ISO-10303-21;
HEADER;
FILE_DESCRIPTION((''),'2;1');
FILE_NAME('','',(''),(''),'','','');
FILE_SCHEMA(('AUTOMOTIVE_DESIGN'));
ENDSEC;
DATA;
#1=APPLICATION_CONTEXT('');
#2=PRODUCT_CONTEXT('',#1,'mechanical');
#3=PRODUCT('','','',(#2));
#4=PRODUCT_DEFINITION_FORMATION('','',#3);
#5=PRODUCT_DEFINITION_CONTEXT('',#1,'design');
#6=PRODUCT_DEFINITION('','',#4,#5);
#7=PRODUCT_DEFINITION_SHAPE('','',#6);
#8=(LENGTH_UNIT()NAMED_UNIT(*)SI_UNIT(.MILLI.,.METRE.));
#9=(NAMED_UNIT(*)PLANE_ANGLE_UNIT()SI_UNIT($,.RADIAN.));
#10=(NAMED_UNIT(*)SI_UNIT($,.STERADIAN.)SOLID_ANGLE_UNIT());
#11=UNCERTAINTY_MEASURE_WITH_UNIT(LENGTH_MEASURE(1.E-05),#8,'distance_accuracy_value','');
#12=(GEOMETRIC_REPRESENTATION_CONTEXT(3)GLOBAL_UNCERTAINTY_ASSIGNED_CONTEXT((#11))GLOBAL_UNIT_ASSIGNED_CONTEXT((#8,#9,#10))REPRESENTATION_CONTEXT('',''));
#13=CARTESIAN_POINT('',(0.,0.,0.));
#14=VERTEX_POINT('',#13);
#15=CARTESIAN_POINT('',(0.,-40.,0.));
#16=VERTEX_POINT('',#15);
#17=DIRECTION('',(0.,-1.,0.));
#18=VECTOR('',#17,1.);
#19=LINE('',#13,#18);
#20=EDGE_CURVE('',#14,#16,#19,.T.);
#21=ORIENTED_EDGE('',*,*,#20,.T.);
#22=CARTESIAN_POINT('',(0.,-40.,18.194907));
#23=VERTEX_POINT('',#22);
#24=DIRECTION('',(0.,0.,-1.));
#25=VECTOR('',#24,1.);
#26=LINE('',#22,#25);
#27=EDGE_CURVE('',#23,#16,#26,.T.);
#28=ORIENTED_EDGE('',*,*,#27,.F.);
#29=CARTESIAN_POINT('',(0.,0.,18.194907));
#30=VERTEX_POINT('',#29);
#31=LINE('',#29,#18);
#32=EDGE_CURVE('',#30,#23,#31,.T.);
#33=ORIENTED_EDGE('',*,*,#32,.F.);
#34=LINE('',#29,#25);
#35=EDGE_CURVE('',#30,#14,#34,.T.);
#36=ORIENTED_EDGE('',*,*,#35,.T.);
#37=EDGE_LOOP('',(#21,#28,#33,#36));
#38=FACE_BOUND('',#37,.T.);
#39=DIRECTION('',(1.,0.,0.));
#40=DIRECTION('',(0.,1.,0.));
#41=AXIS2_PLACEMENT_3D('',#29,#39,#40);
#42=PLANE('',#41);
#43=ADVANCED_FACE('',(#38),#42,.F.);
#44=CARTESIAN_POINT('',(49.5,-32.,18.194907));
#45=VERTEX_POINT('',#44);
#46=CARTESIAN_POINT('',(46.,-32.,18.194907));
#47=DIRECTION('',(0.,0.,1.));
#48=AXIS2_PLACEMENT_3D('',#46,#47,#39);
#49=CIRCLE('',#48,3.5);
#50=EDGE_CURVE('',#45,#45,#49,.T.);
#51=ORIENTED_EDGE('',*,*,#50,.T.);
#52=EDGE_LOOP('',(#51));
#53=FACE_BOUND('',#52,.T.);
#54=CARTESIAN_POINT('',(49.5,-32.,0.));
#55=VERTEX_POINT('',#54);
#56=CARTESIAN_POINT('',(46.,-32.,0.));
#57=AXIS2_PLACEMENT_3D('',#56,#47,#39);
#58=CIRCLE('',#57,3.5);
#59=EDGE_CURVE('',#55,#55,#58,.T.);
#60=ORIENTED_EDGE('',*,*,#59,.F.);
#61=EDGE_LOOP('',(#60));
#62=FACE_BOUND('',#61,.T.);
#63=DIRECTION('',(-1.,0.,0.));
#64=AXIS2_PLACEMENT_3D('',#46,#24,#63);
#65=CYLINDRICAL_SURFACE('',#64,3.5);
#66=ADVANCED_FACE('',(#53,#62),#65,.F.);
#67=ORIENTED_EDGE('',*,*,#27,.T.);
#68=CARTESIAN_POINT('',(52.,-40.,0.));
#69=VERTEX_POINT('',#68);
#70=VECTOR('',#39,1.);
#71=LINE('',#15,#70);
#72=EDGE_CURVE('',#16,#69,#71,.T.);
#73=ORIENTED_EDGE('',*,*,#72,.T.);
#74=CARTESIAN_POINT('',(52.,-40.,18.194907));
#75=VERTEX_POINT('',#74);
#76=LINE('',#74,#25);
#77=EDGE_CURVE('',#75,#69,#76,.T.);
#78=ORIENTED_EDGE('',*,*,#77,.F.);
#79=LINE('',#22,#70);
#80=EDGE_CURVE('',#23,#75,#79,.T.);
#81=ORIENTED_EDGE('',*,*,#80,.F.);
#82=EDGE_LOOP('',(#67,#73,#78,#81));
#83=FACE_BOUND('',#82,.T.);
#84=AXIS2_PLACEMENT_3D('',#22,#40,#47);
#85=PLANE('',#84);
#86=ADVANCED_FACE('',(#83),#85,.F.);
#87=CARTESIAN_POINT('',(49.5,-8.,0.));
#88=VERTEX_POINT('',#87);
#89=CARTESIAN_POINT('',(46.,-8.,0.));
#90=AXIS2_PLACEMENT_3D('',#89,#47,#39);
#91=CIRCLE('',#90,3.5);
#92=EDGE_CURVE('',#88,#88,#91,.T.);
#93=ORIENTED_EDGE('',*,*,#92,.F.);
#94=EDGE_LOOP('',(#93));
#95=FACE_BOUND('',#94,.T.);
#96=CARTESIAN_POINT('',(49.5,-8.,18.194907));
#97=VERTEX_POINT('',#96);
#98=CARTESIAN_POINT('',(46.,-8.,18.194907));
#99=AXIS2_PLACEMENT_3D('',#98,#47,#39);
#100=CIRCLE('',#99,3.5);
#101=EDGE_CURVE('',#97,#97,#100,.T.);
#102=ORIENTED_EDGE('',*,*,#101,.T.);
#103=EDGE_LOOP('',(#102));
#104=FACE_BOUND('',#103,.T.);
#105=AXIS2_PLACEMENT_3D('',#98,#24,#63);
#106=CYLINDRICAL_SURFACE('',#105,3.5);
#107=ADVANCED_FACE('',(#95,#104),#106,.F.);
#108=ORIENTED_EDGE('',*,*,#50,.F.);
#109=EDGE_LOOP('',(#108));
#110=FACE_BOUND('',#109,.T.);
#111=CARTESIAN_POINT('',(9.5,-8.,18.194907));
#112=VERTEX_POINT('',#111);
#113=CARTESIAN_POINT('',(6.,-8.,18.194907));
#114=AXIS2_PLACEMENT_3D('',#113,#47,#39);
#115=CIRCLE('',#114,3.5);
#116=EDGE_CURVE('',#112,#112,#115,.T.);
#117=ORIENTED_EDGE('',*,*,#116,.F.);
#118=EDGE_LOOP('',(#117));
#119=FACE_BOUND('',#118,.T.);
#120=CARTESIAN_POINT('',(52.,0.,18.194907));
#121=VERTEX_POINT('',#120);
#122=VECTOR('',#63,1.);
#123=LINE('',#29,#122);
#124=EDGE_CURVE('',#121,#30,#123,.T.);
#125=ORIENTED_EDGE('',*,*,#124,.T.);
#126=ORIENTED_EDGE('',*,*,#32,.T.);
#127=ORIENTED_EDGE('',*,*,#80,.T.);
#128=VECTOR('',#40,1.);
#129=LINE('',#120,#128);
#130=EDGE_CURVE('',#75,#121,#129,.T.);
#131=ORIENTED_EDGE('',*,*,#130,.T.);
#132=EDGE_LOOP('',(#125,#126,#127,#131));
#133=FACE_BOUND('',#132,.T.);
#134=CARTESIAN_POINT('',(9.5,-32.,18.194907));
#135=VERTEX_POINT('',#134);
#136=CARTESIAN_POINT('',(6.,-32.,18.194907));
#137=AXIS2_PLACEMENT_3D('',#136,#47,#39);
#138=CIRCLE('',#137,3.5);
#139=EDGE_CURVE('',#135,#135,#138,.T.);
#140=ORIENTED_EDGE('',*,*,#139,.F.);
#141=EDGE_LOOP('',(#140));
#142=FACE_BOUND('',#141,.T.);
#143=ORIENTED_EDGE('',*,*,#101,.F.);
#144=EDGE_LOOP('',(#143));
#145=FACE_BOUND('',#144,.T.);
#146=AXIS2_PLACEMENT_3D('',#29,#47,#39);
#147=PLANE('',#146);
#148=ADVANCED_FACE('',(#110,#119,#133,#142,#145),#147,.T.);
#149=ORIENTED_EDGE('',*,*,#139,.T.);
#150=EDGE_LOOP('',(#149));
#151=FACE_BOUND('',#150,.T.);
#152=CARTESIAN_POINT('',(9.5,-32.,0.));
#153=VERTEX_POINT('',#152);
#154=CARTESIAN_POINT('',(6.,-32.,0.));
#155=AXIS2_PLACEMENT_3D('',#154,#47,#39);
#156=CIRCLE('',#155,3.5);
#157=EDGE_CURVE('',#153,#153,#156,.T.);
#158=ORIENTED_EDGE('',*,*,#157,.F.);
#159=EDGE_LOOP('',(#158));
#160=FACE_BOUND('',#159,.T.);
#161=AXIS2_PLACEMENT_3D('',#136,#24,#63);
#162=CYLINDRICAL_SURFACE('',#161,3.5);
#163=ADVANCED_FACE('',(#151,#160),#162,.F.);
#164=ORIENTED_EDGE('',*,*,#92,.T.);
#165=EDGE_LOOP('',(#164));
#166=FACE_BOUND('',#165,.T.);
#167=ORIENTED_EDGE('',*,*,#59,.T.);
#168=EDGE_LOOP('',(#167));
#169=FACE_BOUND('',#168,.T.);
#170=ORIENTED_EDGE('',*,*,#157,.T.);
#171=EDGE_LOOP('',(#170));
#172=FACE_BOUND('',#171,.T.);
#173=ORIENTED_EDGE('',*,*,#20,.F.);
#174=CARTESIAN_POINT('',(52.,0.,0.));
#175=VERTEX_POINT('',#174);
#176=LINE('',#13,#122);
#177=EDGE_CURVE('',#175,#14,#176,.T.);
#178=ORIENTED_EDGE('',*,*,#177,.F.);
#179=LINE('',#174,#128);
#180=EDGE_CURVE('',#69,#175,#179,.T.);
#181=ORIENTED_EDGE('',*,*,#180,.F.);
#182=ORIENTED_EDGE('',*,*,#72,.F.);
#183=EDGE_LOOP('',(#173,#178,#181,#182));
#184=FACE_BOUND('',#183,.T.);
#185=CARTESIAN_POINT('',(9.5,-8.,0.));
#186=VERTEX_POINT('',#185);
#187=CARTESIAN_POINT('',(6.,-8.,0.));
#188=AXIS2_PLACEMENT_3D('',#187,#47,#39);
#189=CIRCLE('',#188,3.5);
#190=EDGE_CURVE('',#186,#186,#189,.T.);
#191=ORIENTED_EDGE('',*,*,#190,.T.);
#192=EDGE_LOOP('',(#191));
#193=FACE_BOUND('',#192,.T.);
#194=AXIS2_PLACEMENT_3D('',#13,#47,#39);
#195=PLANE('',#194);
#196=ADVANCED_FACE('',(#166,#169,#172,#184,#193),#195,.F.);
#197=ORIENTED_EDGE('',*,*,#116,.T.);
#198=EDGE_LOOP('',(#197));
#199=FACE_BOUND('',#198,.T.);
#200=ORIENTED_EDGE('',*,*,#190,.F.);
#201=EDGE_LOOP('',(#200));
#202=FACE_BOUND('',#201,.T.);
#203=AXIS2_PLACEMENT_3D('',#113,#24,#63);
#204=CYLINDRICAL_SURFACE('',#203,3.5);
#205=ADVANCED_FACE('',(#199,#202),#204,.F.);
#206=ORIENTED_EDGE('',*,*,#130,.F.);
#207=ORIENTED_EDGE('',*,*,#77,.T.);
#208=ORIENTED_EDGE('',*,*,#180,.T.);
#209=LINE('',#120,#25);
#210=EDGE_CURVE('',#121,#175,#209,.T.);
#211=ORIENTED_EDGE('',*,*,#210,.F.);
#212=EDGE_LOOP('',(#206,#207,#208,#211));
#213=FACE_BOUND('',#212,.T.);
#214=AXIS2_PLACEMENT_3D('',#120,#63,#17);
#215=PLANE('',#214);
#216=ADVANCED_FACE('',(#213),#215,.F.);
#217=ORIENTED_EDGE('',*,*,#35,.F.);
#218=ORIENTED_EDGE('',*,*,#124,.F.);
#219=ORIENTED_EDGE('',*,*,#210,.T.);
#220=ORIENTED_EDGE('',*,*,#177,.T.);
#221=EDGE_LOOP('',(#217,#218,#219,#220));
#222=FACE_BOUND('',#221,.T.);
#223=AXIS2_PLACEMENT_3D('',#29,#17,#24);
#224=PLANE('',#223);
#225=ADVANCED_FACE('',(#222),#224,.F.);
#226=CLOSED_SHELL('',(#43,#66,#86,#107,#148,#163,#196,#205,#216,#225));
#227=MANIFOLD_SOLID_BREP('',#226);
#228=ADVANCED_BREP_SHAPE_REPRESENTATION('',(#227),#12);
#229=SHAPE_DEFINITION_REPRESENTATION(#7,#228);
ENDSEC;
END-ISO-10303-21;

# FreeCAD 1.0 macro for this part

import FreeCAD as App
import Part
import Sketcher
Q = App.Units.Quantity

doc = App.newDocument("Part")
body = doc.addObject("PartDesign::Body", "Body")

# Sketch on XY plane
sketch1 = body.newObject("Sketcher::SketchObject", "Sketch")
sketch1.AttachmentSupport = (doc.getObject("XY_Plane"), [""])
sketch1.MapMode = "FlatFace"
sketch1.addGeometry(Part.LineSegment(App.Vector(0, 0, 0), App.Vector(0, -40, 0)), False)
sketch1.addGeometry(Part.LineSegment(App.Vector(0, -40, 0), App.Vector(52, -40, 0)), False)
sketch1.addGeometry(Part.LineSegment(App.Vector(52, -40, 0), App.Vector(52, 0, 0)), False)
sketch1.addGeometry(Part.LineSegment(App.Vector(52, 0, 0), App.Vector(0, 0, 0)), False)
sketch1.addGeometry(Part.Circle(App.Vector(6, -32, 0), App.Vector(0, 0, 1), 3.5), False)
sketch1.addGeometry(Part.Circle(App.Vector(46, -32, 0), App.Vector(0, 0, 1), 3.5), False)
sketch1.addGeometry(Part.Circle(App.Vector(6, -8, 0), App.Vector(0, 0, 1), 3.5), False)
sketch1.addGeometry(Part.Circle(App.Vector(46, -8, 0), App.Vector(0, 0, 1), 3.5), False)
sketch1.addConstraint(Sketcher.Constraint("Coincident", 0, 2, 1, 1))
sketch1.addConstraint(Sketcher.Constraint("Coincident", 1, 2, 2, 1))
sketch1.addConstraint(Sketcher.Constraint("Coincident", 2, 2, 3, 1))
sketch1.addConstraint(Sketcher.Constraint("Coincident", 3, 2, 0, 1))
sketch1.addConstraint(Sketcher.Constraint("Vertical", 0))
sketch1.addConstraint(Sketcher.Constraint("Horizontal", 1))
sketch1.addConstraint(Sketcher.Constraint("Vertical", 2))
sketch1.addConstraint(Sketcher.Constraint("Horizontal", 3))
sketch1.addConstraint(Sketcher.Constraint("Coincident", 3, 2, -1, 1))
sketch1.addConstraint(Sketcher.Constraint("Equal", 4, 5))
sketch1.addConstraint(Sketcher.Constraint("Equal", 5, 6))
sketch1.addConstraint(Sketcher.Constraint("Equal", 6, 7))
sketch1.addConstraint(Sketcher.Constraint("Horizontal", 4, 3, 5, 3))
sketch1.addConstraint(Sketcher.Constraint("Horizontal", 6, 3, 7, 3))
sketch1.addConstraint(Sketcher.Constraint("Vertical", 4, 3, 6, 3))
sketch1.addConstraint(Sketcher.Constraint("Vertical", 5, 3, 7, 3))
sketch1.addConstraint(Sketcher.Constraint("Diameter", 4, Q("7 mm")))
sketch1.addConstraint(Sketcher.Constraint("DistanceX", 1, 1, 1, 2, Q("52 mm")))
sketch1.addConstraint(Sketcher.Constraint("DistanceY", 0, 2, 0, 1, Q("40 mm")))
sketch1.addConstraint(Sketcher.Constraint("DistanceX", -1, 1, 4, 3, Q("6 mm")))
sketch1.addConstraint(Sketcher.Constraint("DistanceY", 4, 3, -1, 1, Q("32 mm")))
sketch1.addConstraint(Sketcher.Constraint("DistanceX", -1, 1, 5, 3, Q("46 mm")))
sketch1.addConstraint(Sketcher.Constraint("DistanceY", 6, 3, -1, 1, Q("8 mm")))
pad1 = body.newObject("PartDesign::Pad", "Pad")
pad1.Profile = sketch1
pad1.Length = 18.194907

doc.recompute()
